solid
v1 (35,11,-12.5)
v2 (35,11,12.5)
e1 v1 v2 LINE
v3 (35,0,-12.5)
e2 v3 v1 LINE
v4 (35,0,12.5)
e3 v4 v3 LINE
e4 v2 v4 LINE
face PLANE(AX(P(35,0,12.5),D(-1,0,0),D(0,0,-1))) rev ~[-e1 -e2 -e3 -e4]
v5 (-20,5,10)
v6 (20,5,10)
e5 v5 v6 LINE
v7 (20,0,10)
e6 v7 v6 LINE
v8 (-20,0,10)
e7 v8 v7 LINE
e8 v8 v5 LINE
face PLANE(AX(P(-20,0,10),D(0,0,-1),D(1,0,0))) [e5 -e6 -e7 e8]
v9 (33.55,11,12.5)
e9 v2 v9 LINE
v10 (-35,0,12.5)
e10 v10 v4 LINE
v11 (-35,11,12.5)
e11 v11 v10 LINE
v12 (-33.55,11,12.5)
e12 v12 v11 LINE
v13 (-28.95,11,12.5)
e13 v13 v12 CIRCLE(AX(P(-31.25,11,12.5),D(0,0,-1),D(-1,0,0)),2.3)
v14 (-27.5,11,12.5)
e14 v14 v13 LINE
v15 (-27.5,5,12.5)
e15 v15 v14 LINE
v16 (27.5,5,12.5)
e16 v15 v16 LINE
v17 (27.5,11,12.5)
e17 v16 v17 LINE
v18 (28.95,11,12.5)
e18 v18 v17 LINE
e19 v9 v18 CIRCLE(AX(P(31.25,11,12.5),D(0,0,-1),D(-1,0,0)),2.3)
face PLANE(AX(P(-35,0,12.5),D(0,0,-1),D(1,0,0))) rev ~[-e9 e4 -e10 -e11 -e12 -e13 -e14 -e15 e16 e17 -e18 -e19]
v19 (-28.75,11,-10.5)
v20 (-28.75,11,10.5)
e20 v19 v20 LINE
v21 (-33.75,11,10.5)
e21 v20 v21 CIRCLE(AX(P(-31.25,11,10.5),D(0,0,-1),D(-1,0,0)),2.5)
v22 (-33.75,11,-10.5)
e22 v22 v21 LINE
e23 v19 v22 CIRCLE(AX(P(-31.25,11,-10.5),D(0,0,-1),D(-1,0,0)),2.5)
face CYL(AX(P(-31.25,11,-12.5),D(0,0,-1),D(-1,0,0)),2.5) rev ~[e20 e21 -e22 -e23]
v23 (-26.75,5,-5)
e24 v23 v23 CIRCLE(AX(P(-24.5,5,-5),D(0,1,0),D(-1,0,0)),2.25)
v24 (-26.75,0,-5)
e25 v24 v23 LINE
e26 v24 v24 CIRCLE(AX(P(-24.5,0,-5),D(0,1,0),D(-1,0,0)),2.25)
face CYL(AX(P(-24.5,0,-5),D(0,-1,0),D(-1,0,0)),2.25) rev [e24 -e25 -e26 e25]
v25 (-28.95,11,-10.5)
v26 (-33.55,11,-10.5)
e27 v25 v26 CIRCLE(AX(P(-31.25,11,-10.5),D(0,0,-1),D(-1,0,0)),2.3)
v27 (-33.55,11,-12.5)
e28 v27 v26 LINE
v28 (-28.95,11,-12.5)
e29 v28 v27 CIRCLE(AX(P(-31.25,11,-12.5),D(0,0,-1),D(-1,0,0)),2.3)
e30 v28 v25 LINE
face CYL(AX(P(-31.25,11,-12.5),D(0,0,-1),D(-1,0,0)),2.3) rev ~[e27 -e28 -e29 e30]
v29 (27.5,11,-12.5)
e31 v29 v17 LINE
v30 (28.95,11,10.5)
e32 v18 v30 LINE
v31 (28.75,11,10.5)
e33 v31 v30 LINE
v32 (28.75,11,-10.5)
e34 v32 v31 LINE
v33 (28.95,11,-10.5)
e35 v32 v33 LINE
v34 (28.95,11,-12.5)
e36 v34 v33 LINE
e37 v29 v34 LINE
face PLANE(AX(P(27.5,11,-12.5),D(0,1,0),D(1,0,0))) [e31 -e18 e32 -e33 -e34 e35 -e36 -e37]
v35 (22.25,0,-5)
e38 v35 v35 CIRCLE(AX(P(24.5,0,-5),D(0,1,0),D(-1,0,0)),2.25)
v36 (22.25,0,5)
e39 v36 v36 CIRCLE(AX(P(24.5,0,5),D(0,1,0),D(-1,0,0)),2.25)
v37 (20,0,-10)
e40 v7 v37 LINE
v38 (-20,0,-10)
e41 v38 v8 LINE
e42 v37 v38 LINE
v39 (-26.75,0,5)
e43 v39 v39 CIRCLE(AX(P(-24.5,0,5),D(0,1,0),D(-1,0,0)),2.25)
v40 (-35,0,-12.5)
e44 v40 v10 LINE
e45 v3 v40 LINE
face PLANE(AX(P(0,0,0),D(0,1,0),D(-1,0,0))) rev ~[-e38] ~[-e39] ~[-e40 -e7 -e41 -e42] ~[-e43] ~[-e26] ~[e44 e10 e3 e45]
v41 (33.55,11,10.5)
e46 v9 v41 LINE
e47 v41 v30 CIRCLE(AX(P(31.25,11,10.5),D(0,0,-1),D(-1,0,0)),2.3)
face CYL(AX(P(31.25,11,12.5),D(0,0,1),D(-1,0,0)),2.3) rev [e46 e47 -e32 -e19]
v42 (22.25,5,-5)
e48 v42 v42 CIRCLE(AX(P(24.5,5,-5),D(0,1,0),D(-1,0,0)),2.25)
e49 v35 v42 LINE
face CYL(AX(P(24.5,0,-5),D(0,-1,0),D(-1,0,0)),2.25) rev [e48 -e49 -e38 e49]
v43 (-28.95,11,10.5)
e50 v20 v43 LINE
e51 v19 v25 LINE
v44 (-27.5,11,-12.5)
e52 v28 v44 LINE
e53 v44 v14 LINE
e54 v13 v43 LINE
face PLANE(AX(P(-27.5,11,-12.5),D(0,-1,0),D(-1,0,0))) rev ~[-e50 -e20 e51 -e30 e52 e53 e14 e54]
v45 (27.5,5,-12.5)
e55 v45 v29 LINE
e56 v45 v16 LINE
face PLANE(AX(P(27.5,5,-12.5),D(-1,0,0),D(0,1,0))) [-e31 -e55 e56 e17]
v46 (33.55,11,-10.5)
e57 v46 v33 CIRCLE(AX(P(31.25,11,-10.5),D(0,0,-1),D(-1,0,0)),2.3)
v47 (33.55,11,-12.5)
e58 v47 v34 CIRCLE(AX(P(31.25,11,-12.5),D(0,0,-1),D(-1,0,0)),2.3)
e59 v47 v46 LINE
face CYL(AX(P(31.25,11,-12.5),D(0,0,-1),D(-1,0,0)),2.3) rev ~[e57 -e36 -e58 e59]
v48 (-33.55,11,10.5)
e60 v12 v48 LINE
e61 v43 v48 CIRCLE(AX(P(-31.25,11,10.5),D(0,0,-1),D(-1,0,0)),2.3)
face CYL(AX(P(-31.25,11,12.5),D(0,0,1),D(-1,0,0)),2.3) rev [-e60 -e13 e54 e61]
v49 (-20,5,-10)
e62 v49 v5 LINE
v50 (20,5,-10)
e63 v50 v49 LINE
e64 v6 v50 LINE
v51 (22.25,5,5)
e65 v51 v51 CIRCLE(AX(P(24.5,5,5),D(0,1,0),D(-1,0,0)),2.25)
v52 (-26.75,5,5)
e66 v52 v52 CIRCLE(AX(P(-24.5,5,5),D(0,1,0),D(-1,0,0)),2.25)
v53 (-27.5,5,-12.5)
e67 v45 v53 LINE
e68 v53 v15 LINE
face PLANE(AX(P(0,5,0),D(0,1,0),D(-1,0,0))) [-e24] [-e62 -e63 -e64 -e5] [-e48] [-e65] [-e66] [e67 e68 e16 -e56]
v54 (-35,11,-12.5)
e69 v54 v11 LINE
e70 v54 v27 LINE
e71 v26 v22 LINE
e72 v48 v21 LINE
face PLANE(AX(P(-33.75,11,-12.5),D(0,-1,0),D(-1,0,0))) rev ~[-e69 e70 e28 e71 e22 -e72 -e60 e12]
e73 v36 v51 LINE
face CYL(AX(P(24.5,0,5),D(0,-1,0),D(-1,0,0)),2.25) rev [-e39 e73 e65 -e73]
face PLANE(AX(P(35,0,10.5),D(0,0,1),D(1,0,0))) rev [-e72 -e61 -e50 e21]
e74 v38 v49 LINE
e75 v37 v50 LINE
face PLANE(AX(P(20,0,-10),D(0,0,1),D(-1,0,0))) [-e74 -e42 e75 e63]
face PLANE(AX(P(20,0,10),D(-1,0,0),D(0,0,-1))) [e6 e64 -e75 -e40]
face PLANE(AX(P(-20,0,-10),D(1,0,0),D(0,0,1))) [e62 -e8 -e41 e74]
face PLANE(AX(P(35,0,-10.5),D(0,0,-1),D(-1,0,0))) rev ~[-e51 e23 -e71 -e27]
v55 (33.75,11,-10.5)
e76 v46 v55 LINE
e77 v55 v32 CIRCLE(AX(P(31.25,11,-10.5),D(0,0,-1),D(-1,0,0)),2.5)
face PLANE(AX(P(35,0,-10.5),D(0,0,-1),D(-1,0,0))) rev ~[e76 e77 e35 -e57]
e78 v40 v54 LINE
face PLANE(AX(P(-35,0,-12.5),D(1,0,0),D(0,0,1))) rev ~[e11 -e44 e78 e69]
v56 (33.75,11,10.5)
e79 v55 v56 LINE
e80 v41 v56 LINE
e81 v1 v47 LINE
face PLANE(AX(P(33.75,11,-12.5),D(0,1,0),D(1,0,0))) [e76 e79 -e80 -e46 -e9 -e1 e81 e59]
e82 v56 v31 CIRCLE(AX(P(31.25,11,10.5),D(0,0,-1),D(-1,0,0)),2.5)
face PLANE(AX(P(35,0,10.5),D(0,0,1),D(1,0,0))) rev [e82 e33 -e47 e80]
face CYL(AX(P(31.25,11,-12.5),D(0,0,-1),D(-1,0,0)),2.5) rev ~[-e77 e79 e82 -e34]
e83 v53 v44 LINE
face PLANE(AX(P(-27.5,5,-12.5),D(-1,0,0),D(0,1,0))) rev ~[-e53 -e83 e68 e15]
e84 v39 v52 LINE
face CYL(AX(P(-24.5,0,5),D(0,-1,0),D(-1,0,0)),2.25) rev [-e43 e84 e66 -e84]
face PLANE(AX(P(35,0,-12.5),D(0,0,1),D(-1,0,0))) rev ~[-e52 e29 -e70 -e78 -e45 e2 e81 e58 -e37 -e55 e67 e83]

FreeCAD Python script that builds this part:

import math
import FreeCAD as App
import Part
import Sketcher
from FreeCAD import Vector
Q = App.Units.Quantity

doc = App.newDocument("Part")
body = doc.addObject("PartDesign::Body", "Body")

# Sketch on XZ plane
sketch1 = body.newObject("Sketcher::SketchObject", "Sketch")
sketch1.AttachmentSupport = (doc.getObject("XZ_Plane"), [""])
sketch1.MapMode = "FlatFace"
sketch1.addGeometry([
    Part.LineSegment(Vector(35, 12.5, 0), Vector(35, -12.5, 0)),  # 0
    Part.LineSegment(Vector(35, -12.5, 0), Vector(-35, -12.5, 0)),  # 1
    Part.LineSegment(Vector(-35, -12.5, 0), Vector(-35, 12.5, 0)),  # 2
    Part.LineSegment(Vector(-35, 12.5, 0), Vector(35, 12.5, 0)),  # 3
    Part.Circle(Vector(24.5, -5, 0), Vector(0, 0, 1), 2.2),  # 4
    Part.Circle(Vector(-24.5, -5, 0), Vector(0, 0, 1), 2.2),  # 5
    Part.Circle(Vector(24.5, 5, 0), Vector(0, 0, 1), 2.2),  # 6
    Part.LineSegment(Vector(-20, -10, 0), Vector(20, -10, 0)),  # 7
    Part.LineSegment(Vector(20, -10, 0), Vector(20, 10, 0)),  # 8
    Part.LineSegment(Vector(20, 10, 0), Vector(-20, 10, 0)),  # 9
    Part.LineSegment(Vector(-20, 10, 0), Vector(-20, -10, 0)),  # 10
    Part.Circle(Vector(-24.5, 5, 0), Vector(0, 0, 1), 2.2),  # 11
], False)
sketch1.addConstraint([
    Sketcher.Constraint("Coincident", 0, 2, 1, 1),
    Sketcher.Constraint("Coincident", 1, 2, 2, 1),
    Sketcher.Constraint("Coincident", 2, 2, 3, 1),
    Sketcher.Constraint("Coincident", 3, 2, 0, 1),
    Sketcher.Constraint("Coincident", 7, 2, 8, 1),
    Sketcher.Constraint("Coincident", 8, 2, 9, 1),
    Sketcher.Constraint("Coincident", 9, 2, 10, 1),
    Sketcher.Constraint("Coincident", 10, 2, 7, 1),
    Sketcher.Constraint("Vertical", 0),
    Sketcher.Constraint("Horizontal", 1),
    Sketcher.Constraint("Vertical", 2),
    Sketcher.Constraint("Horizontal", 3),
    Sketcher.Constraint("Horizontal", 7),
    Sketcher.Constraint("Vertical", 8),
    Sketcher.Constraint("Horizontal", 9),
    Sketcher.Constraint("Vertical", 10),
    Sketcher.Constraint("Equal", 4, 5),
    Sketcher.Constraint("Equal", 5, 6),
    Sketcher.Constraint("Equal", 6, 11),
    Sketcher.Constraint("Symmetric", 5, 3, 6, 3, -1, 1),
    Sketcher.Constraint("Symmetric", 4, 3, 11, 3, -1, 1),
    Sketcher.Constraint("Symmetric", 0, 2, 2, 2, -1, 1),
    Sketcher.Constraint("Symmetric", 7, 2, 9, 2, -1, 1),
    Sketcher.Constraint("Symmetric", 4, 3, 5, 3, -2),
    Sketcher.Constraint("Diameter", 4, Q("4.5 mm")),
    Sketcher.Constraint("DistanceX", 1, 2, 1, 1, Q("70 mm")),
    Sketcher.Constraint("DistanceX", 7, 1, 7, 2, Q("40 mm")),
    Sketcher.Constraint("DistanceY", 0, 2, 0, 1, Q("25 mm")),
    Sketcher.Constraint("DistanceY", 8, 1, 8, 2, Q("20 mm")),
    Sketcher.Constraint("DistanceX", 5, 3, 4, 3, Q("49 mm")),
    Sketcher.Constraint("DistanceY", 4, 3, 6, 3, Q("10 mm")),
])
pad1 = body.newObject("PartDesign::Pad", "Pad")
pad1.Profile = sketch1
pad1.Length = 5
pad1.Reversed = True

# Sketch on XY plane
sketch2 = body.newObject("Sketcher::SketchObject", "Sketch001")
sketch2.AttachmentSupport = (doc.getObject("XY_Plane"), [""])
sketch2.MapMode = "FlatFace"
sketch2.AttachmentOffset = App.Placement(Vector(0, 0, -12.5), App.Rotation())
sketch2.addGeometry([
    Part.LineSegment(Vector(-27.5, 11, 0), Vector(-27.5, 5, 0)),  # 0
    Part.LineSegment(Vector(-27.5, 5, 0), Vector(-35, 5, 0)),  # 1
    Part.LineSegment(Vector(-35, 5, 0), Vector(-35, 11, 0)),  # 2
    Part.LineSegment(Vector(-35, 11, 0), Vector(-33.8, 11, 0)),  # 3
    Part.ArcOfCircle(Part.Circle(Vector(-31.2, 11, 0), Vector(0, 0, 1), 2.5), math.radians(180), math.radians(360)),  # 4
    Part.LineSegment(Vector(-28.8, 11, 0), Vector(-27.5, 11, 0)),  # 5
    Part.LineSegment(Vector(35, 11, 0), Vector(35, 5, 0)),  # 6
    Part.LineSegment(Vector(35, 5, 0), Vector(27.5, 5, 0)),  # 7
    Part.LineSegment(Vector(27.5, 5, 0), Vector(27.5, 11, 0)),  # 8
    Part.LineSegment(Vector(27.5, 11, 0), Vector(28.8, 11, 0)),  # 9
    Part.ArcOfCircle(Part.Circle(Vector(31.2, 11, 0), Vector(0, 0, 1), 2.5), math.radians(180), math.radians(360)),  # 10
    Part.LineSegment(Vector(33.8, 11, 0), Vector(35, 11, 0)),  # 11
], False)
sketch2.addConstraint([
    Sketcher.Constraint("Coincident", 0, 2, 1, 1),
    Sketcher.Constraint("Coincident", 1, 2, 2, 1),
    Sketcher.Constraint("Coincident", 2, 2, 3, 1),
    Sketcher.Constraint("Coincident", 3, 2, 4, 1),
    Sketcher.Constraint("Coincident", 4, 2, 5, 1),
    Sketcher.Constraint("Coincident", 5, 2, 0, 1),
    Sketcher.Constraint("Coincident", 6, 2, 7, 1),
    Sketcher.Constraint("Coincident", 7, 2, 8, 1),
    Sketcher.Constraint("Coincident", 8, 2, 9, 1),
    Sketcher.Constraint("Coincident", 9, 2, 10, 1),
    Sketcher.Constraint("Coincident", 10, 2, 11, 1),
    Sketcher.Constraint("Coincident", 11, 2, 6, 1),
    Sketcher.Constraint("Vertical", 0),
    Sketcher.Constraint("Horizontal", 1),
    Sketcher.Constraint("Vertical", 2),
    Sketcher.Constraint("Horizontal", 3),
    Sketcher.Constraint("Horizontal", 5),
    Sketcher.Constraint("Vertical", 6),
    Sketcher.Constraint("Horizontal", 7),
    Sketcher.Constraint("Vertical", 8),
    Sketcher.Constraint("Horizontal", 9),
    Sketcher.Constraint("Horizontal", 11),
    Sketcher.Constraint("Equal", 4, 10),
    Sketcher.Constraint("Symmetric", 4, 3, 10, 3, -2),
    Sketcher.Constraint("Symmetric", 1, 2, 6, 2, -2),
    Sketcher.Constraint("Symmetric", 5, 2, 8, 2, -2),
    Sketcher.Constraint("Horizontal", 10, 3, 2, 2),
    Sketcher.Constraint("Horizontal", 3, 2, 4, 2),
    Sketcher.Constraint("Horizontal", 9, 2, 10, 2),
    Sketcher.Constraint("Equal", 3, 5),
    Sketcher.Constraint("Radius", 4, Q("2.5 mm")),
    Sketcher.Constraint("DistanceY", 0, 2, 0, 1, Q("6 mm")),
    Sketcher.Constraint("DistanceX", 1, 2, 1, 1, Q("7.5 mm")),
    Sketcher.Constraint("DistanceY", -1, 1, 0, 2, Q("5 mm")),
    Sketcher.Constraint("DistanceX", 1, 2, -1, 1, Q("35 mm")),
])
pad2 = body.newObject("PartDesign::Pad", "Pad001")
pad2.Profile = sketch2
pad2.Length = 25

# Sketch on XY plane
sketch3 = body.newObject("Sketcher::SketchObject", "Sketch002")
sketch3.AttachmentSupport = (doc.getObject("XY_Plane"), [""])
sketch3.MapMode = "FlatFace"
sketch3.AttachmentOffset = App.Placement(Vector(0, 0, -12.5), App.Rotation())
sketch3.addGeometry([
    Part.LineSegment(Vector(-28.95, 11, 0), Vector(-28.75, 11, 0)),  # 0
    Part.ArcOfCircle(Part.Circle(Vector(-31.25, 11, 0), Vector(0, 0, 1), 2.5), math.radians(180), math.radians(360)),  # 1
    Part.LineSegment(Vector(-33.75, 11, 0), Vector(-33.55, 11, 0)),  # 2
    Part.ArcOfCircle(Part.Circle(Vector(-31.25, 11, 0), Vector(0, 0, 1), 2.3), math.radians(180), math.radians(360)),  # 3
    Part.LineSegment(Vector(33.55, 11, 0), Vector(33.75, 11, 0)),  # 4
    Part.ArcOfCircle(Part.Circle(Vector(31.25, 11, 0), Vector(0, 0, 1), 2.5), math.radians(180), math.radians(360)),  # 5
    Part.LineSegment(Vector(28.75, 11, 0), Vector(28.95, 11, 0)),  # 6
    Part.ArcOfCircle(Part.Circle(Vector(31.25, 11, 0), Vector(0, 0, 1), 2.3), math.radians(180), math.radians(360)),  # 7
], False)
sketch3.addConstraint([
    Sketcher.Constraint("Coincident", 0, 2, 1, 2),
    Sketcher.Constraint("Coincident", 1, 1, 2, 1),
    Sketcher.Constraint("Coincident", 2, 2, 3, 1),
    Sketcher.Constraint("Coincident", 3, 2, 0, 1),
    Sketcher.Constraint("Coincident", 4, 2, 5, 2),
    Sketcher.Constraint("Coincident", 5, 1, 6, 1),
    Sketcher.Constraint("Coincident", 6, 2, 7, 1),
    Sketcher.Constraint("Coincident", 7, 2, 4, 1),
    Sketcher.Constraint("Horizontal", 0),
    Sketcher.Constraint("Horizontal", 2),
    Sketcher.Constraint("Horizontal", 4),
    Sketcher.Constraint("Horizontal", 6),
    Sketcher.Constraint("Coincident", 3, 3, 1, 3),
    Sketcher.Constraint("Coincident", 7, 3, 5, 3),
    Sketcher.Constraint("Equal", 1, 5),
    Sketcher.Constraint("Equal", 3, 7),
    Sketcher.Constraint("Symmetric", 1, 3, 5, 3, -2),
    Sketcher.Constraint("Horizontal", 7, 3, 0, 2),
    Sketcher.Constraint("Horizontal", 0, 2, 1, 1),
    Sketcher.Constraint("Horizontal", 3, 2, 4, 2),
    Sketcher.Constraint("Horizontal", 4, 2, 5, 1),
    Sketcher.Constraint("Radius", 1, Q("2.5 mm")),
    Sketcher.Constraint("DistanceX", 0, 1, 0, 2, Q("0.2 mm")),
    Sketcher.Constraint("DistanceY", -1, 1, 1, 3, Q("11 mm")),
    Sketcher.Constraint("DistanceX", 0, 2, 5, 3, Q("60 mm")),
])
pad3 = body.newObject("PartDesign::Pad", "Pad002")
pad3.Profile = sketch3
pad3.Length = 2
doc.recompute()

mirrored = body.newObject("PartDesign::Mirrored", "Mirrored")
mirrored.Originals = [pad3]
mirrored.MirrorPlane = (doc.getObject("XY_Plane"), [""])
body.Tip = mirrored

doc.recompute()
